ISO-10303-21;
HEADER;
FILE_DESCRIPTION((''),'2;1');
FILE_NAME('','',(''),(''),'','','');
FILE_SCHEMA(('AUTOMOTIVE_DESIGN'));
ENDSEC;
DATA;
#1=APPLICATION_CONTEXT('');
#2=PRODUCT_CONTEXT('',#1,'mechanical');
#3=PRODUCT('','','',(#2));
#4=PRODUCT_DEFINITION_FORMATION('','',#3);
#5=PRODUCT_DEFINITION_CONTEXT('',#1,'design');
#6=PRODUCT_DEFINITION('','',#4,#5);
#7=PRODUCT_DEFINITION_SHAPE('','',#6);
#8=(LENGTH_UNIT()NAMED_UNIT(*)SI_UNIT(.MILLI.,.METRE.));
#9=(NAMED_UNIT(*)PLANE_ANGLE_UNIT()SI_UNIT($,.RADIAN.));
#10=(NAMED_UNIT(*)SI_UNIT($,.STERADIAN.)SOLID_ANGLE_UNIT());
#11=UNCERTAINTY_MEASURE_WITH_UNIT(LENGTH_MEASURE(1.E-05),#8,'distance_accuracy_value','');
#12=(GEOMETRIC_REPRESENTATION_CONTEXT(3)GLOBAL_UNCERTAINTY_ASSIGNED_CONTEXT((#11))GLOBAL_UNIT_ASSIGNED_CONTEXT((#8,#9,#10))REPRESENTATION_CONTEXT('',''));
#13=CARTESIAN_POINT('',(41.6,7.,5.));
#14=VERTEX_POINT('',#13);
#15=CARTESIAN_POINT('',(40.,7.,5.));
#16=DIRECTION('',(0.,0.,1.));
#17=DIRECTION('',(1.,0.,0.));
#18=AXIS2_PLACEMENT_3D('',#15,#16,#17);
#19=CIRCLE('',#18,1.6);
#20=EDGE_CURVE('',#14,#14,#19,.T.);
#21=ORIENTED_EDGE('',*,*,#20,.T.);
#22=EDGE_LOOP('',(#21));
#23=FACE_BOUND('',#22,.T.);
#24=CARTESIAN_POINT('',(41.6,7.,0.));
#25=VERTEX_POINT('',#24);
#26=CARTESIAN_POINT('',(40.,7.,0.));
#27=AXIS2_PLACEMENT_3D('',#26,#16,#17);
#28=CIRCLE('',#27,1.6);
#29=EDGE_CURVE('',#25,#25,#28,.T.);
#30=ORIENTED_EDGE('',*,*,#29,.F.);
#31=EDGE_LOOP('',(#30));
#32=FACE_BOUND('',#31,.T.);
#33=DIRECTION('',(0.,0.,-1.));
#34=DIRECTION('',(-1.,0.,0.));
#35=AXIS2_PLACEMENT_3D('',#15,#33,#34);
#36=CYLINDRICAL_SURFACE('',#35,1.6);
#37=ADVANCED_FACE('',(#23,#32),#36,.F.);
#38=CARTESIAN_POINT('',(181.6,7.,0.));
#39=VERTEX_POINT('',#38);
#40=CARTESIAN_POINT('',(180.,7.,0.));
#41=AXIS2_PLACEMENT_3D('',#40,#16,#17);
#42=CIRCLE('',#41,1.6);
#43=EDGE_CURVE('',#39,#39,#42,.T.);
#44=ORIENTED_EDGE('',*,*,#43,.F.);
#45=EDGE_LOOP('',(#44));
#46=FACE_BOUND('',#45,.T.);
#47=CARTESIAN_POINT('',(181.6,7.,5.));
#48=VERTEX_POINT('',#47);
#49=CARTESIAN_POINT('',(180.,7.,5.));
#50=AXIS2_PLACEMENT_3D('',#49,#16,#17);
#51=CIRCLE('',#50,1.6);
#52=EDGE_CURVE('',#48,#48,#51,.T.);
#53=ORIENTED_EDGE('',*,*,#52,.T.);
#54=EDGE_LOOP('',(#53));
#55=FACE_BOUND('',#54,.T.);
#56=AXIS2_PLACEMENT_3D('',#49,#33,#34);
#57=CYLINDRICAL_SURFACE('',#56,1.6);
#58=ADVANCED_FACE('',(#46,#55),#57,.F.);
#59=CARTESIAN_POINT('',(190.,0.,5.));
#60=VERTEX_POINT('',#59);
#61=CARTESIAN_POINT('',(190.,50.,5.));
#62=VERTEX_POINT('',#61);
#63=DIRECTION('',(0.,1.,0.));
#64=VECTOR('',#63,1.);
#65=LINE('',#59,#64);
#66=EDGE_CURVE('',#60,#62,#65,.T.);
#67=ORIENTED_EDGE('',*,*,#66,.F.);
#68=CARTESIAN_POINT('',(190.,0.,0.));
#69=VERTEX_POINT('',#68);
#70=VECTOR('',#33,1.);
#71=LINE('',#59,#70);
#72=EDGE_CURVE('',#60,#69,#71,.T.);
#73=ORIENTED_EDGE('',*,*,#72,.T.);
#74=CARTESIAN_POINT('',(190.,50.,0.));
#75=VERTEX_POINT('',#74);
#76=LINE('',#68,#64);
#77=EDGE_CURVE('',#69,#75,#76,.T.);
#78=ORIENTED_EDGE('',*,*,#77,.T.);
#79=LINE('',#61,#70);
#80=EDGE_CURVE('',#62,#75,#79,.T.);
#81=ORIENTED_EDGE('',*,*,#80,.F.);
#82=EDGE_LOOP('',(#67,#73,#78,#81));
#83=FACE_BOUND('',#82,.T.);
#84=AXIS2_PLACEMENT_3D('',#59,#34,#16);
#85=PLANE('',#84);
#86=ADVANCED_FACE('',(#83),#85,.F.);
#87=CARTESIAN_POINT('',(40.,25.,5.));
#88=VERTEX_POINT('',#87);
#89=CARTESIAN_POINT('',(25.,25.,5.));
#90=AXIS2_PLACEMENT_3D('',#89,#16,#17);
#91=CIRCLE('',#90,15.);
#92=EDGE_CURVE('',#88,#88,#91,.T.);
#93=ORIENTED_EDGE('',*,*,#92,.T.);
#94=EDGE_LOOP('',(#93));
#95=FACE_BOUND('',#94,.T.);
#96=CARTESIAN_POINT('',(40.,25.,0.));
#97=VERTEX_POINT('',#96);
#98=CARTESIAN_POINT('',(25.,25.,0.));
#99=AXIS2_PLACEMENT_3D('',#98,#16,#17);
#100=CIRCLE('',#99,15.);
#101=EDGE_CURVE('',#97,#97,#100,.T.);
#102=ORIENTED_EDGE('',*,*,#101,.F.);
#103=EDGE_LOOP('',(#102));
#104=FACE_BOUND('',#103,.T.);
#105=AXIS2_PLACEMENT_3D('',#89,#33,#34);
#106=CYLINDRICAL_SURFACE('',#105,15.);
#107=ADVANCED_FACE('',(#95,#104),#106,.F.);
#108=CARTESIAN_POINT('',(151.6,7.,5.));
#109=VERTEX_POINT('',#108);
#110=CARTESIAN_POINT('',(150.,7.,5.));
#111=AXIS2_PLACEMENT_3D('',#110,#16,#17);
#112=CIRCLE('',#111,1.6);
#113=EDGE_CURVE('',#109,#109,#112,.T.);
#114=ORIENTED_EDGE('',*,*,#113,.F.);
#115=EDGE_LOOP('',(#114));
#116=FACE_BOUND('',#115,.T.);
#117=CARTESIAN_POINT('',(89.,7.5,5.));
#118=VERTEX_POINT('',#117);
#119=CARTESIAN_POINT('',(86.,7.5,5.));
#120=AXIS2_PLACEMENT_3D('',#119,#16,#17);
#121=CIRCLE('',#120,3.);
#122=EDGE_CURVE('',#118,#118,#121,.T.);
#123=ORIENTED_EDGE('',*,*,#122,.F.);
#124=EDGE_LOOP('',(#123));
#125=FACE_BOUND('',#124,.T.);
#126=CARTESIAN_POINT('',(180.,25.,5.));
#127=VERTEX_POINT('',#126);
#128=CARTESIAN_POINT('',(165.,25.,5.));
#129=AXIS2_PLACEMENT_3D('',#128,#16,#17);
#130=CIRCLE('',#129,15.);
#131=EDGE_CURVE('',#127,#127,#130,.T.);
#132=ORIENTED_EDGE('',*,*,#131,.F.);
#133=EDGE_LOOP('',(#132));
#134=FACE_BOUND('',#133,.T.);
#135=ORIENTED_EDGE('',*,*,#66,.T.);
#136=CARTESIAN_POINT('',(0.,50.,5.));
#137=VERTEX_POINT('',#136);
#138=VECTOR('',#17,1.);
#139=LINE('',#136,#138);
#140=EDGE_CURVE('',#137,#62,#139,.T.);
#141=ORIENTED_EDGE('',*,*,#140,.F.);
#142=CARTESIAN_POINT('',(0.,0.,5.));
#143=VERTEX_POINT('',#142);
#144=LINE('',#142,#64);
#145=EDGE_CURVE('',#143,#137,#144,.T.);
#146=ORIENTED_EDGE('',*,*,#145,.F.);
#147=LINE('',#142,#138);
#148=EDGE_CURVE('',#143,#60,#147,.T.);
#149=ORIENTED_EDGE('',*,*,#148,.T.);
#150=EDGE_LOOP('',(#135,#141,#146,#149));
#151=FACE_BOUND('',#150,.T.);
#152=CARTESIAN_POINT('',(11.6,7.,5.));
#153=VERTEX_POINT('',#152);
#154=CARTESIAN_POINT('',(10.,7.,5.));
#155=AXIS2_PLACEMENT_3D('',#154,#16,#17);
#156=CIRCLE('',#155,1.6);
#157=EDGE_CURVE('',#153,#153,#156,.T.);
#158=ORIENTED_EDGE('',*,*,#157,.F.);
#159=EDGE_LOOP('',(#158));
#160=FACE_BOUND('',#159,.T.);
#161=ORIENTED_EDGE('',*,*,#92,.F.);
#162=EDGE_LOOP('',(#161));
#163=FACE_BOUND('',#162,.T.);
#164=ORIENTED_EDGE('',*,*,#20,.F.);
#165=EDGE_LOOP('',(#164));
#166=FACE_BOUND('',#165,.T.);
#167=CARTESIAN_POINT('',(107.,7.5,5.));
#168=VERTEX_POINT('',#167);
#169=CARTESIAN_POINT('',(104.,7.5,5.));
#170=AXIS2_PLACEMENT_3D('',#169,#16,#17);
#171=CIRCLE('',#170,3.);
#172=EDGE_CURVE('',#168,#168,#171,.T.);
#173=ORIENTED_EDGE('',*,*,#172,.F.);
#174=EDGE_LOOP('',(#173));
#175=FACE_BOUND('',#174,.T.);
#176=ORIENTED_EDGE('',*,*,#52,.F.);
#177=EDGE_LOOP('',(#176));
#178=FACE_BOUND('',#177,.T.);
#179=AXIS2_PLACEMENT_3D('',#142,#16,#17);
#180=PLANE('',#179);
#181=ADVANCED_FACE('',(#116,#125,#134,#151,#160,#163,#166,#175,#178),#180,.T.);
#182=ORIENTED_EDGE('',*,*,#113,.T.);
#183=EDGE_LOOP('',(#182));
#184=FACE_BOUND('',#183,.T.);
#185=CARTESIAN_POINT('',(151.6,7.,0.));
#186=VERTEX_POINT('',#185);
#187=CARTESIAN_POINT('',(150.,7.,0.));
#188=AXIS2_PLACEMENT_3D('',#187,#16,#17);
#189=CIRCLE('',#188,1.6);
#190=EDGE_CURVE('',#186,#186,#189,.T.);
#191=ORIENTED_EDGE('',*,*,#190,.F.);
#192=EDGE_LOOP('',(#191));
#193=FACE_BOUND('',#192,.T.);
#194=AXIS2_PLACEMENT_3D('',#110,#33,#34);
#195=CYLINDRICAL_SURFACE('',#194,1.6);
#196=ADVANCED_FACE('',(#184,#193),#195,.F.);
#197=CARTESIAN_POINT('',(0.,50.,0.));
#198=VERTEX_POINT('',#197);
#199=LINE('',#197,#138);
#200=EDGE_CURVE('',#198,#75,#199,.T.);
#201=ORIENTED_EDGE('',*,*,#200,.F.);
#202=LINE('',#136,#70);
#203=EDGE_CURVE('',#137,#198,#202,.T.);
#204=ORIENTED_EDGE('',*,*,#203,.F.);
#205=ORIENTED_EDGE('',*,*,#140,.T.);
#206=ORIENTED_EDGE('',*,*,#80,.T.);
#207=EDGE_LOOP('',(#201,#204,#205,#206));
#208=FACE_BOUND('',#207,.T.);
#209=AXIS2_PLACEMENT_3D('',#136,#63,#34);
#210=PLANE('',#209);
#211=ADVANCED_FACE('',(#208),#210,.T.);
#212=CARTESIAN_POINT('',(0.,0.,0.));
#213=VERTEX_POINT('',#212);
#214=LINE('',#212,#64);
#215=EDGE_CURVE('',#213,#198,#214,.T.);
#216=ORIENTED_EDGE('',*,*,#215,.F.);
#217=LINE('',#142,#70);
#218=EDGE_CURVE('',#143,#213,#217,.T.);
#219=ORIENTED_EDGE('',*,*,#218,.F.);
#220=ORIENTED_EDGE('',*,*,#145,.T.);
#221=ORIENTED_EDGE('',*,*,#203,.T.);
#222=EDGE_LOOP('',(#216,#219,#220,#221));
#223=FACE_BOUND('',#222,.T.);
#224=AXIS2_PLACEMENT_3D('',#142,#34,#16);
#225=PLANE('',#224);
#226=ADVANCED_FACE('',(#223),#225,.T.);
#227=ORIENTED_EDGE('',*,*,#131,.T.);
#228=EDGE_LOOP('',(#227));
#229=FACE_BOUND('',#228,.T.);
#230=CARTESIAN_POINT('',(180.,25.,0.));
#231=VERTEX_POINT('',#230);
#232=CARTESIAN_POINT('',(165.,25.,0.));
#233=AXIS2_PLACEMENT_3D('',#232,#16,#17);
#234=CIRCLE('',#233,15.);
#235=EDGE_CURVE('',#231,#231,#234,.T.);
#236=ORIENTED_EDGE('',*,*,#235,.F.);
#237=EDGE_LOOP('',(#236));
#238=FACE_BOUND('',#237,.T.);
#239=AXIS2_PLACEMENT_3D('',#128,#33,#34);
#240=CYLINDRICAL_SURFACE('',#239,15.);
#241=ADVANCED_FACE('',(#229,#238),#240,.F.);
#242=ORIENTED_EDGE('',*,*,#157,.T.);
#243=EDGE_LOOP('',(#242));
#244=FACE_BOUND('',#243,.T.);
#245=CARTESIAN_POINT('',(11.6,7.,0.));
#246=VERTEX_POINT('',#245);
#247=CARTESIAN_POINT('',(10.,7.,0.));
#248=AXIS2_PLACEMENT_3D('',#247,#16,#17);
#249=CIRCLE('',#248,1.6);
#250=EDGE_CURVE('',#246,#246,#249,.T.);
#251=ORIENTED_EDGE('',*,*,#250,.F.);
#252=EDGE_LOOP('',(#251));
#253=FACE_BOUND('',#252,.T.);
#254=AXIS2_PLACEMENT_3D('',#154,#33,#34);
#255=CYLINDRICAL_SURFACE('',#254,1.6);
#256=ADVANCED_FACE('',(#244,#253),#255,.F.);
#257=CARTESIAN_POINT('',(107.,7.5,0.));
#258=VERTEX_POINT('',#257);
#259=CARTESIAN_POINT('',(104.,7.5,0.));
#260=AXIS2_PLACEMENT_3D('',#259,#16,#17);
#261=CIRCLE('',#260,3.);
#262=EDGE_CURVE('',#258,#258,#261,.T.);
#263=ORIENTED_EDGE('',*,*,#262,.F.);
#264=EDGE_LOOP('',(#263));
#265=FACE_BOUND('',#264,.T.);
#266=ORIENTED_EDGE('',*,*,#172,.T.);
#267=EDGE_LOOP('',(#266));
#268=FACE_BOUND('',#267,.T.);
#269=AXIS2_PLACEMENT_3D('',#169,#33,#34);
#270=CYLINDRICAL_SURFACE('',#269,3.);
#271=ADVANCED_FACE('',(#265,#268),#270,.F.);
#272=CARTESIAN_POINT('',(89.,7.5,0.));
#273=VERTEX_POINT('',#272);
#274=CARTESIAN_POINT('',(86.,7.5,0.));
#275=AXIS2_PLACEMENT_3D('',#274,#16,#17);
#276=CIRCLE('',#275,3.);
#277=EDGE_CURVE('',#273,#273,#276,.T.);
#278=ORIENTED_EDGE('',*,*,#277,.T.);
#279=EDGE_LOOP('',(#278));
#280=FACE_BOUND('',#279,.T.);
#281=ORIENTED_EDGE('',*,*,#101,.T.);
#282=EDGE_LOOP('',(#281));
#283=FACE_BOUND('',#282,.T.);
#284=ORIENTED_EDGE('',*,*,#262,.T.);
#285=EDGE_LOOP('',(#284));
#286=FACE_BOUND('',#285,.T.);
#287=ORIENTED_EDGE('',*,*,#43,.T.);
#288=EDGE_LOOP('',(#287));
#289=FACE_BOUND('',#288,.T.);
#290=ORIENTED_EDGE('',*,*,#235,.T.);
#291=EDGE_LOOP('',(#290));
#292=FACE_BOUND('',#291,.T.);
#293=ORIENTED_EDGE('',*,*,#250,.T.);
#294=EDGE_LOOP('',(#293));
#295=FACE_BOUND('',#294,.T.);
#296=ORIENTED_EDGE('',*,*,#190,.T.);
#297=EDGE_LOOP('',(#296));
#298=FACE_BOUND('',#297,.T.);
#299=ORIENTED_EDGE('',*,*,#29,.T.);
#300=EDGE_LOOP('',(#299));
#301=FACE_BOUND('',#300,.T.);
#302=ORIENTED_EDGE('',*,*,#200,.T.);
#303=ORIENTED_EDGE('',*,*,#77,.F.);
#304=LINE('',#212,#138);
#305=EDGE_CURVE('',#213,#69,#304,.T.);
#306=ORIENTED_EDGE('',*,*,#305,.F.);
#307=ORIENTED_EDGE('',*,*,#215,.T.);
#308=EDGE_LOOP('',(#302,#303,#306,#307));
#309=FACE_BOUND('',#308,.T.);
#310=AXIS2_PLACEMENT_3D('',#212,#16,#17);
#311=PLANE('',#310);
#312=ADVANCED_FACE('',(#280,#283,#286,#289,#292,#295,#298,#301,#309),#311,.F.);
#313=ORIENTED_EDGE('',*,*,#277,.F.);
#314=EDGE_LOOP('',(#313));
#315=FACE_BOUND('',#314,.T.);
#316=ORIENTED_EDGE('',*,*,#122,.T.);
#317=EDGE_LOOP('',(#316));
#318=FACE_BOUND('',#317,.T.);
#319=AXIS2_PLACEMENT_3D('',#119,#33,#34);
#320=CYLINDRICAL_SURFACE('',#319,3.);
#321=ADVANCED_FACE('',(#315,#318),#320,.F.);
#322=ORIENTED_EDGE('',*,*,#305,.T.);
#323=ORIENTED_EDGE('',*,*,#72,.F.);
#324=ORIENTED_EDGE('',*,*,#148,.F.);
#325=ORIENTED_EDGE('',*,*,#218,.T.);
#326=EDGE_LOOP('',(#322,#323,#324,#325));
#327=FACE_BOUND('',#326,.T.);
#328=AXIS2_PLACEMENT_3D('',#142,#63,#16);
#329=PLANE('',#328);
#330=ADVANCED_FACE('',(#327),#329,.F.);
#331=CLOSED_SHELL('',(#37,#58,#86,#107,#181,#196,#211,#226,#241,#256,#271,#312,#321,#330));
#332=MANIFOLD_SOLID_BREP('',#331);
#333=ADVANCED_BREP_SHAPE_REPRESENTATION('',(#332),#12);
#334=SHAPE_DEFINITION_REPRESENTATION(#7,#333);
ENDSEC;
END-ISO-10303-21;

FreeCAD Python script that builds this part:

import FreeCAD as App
import Part
import Sketcher

V = App.Vector

doc = App.newDocument("Part")
body = doc.addObject("PartDesign::Body", "Body")

sketch1 = body.newObject("Sketcher::SketchObject", "Sketch")
sketch1.AttachmentSupport = (doc.getObject("XY_Plane"), [""])
sketch1.MapMode = "FlatFace"
sketch1.addGeometry([
    Part.LineSegment(V(0, 50, 0), V(0, 0, 0)),
    Part.LineSegment(V(0, 0, 0), V(190, 0, 0)),
    Part.LineSegment(V(190, 0, 0), V(190, 50, 0)),
    Part.LineSegment(V(190, 50, 0), V(0, 50, 0)),
    Part.Circle(V(10, 7, 0), V(0, 0, 1), 1.6),
    Part.Circle(V(40, 7, 0), V(0, 0, 1), 1.6),
    Part.Circle(V(86, 7.5, 0), V(0, 0, 1), 3),
    Part.Circle(V(104, 7.5, 0), V(0, 0, 1), 3),
    Part.Circle(V(150, 7, 0), V(0, 0, 1), 1.6),
    Part.Circle(V(180, 7, 0), V(0, 0, 1), 1.6),
    Part.Circle(V(25, 25, 0), V(0, 0, 1), 15),
    Part.Circle(V(165, 25, 0), V(0, 0, 1), 15),
], False)
sketch1.addConstraint([
    Sketcher.Constraint("Coincident", 0, 2, 1, 1),
    Sketcher.Constraint("Coincident", 1, 2, 2, 1),
    Sketcher.Constraint("Coincident", 2, 2, 3, 1),
    Sketcher.Constraint("Coincident", 3, 2, 0, 1),
    Sketcher.Constraint("Vertical", 0),
    Sketcher.Constraint("Horizontal", 1),
    Sketcher.Constraint("Vertical", 2),
    Sketcher.Constraint("Horizontal", 3),
    Sketcher.Constraint("Coincident", 0, 2, -1, 1),
    Sketcher.Constraint("Equal", 4, 5),
    Sketcher.Constraint("Equal", 6, 7),
    Sketcher.Constraint("Equal", 5, 8),
    Sketcher.Constraint("Equal", 8, 9),
    Sketcher.Constraint("Equal", 10, 11),
    Sketcher.Constraint("Horizontal", 4, 3, 5, 3),
    Sketcher.Constraint("Horizontal", 6, 3, 7, 3),
    Sketcher.Constraint("Horizontal", 5, 3, 8, 3),
    Sketcher.Constraint("Horizontal", 8, 3, 9, 3),
    Sketcher.Constraint("Horizontal", 10, 3, 11, 3),
    Sketcher.Constraint("Diameter", 6, 6.0),
    Sketcher.Constraint("Diameter", 10, 30.0),
    Sketcher.Constraint("Diameter", 4, 3.2),
    Sketcher.Constraint("DistanceX", 1, 1, 1, 2, 190.0),
    Sketcher.Constraint("DistanceY", 0, 2, 0, 1, 50.0),
    Sketcher.Constraint("DistanceX", -1, 1, 4, 3, 10.0),
    Sketcher.Constraint("DistanceY", -1, 1, 4, 3, 7.0),
    Sketcher.Constraint("DistanceX", -1, 1, 5, 3, 40.0),
    Sketcher.Constraint("DistanceX", -1, 1, 6, 3, 86.0),
    Sketcher.Constraint("DistanceX", -1, 1, 7, 3, 104.0),
    Sketcher.Constraint("DistanceX", -1, 1, 8, 3, 150.0),
    Sketcher.Constraint("DistanceX", -1, 1, 9, 3, 180.0),
    Sketcher.Constraint("DistanceX", -1, 1, 10, 3, 25.0),
    Sketcher.Constraint("DistanceY", -1, 1, 10, 3, 25.0),
    Sketcher.Constraint("DistanceX", -1, 1, 11, 3, 165.0),
    Sketcher.Constraint("DistanceY", -1, 1, 6, 3, 7.5),
])
pad1 = body.newObject("PartDesign::Pad", "Pad")
pad1.Profile = sketch1
pad1.Length = 5

doc.recompute()
